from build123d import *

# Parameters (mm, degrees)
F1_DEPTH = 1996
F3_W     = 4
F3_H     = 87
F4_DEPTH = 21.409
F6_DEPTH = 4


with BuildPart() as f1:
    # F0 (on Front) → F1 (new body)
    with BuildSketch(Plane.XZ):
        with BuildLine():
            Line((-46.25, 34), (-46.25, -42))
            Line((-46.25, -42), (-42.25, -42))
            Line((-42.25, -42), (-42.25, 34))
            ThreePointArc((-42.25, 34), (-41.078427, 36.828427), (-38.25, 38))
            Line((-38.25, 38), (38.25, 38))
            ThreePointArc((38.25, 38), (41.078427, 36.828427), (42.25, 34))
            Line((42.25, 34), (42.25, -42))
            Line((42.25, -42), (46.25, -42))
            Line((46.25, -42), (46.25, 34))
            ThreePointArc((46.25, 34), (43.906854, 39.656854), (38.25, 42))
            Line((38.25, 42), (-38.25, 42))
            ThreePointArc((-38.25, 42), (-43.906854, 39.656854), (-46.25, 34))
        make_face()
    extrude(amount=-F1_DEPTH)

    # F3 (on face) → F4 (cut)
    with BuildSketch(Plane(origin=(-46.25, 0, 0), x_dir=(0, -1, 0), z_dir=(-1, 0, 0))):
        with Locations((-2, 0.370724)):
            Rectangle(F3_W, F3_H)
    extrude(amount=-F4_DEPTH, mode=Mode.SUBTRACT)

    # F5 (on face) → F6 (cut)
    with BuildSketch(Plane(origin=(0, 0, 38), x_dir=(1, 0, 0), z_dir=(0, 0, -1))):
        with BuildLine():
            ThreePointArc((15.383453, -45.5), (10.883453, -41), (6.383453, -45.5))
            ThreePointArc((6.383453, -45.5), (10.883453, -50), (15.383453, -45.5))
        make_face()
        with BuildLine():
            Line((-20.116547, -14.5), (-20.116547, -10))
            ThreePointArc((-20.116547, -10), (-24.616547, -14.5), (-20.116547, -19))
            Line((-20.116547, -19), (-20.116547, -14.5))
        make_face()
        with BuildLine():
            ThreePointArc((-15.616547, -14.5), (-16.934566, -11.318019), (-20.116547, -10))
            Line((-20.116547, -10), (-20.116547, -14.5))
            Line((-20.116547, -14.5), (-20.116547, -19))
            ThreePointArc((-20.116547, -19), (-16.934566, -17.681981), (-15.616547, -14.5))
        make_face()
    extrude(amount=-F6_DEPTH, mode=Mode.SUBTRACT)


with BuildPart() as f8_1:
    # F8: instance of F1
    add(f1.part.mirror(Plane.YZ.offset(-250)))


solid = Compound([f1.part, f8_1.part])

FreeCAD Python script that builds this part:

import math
import FreeCAD as App
import Part
import Sketcher
Q = App.Units.Quantity

doc = App.newDocument("Part")
body = doc.addObject("PartDesign::Body", "Body")

# Sketch on XZ plane
sketch1 = doc.addObject("Sketcher::SketchObject", "Sketch")
body.addObject(sketch1)
sketch1.AttachmentSupport = (doc.XZ_Plane, [""])
sketch1.MapMode = "FlatFace"
sketch1.addGeometry([
    Part.LineSegment(App.Vector(-46.2, 34, 0), App.Vector(-46.2, -42, 0)),  # 0
    Part.LineSegment(App.Vector(-46.2, -42, 0), App.Vector(-42.2, -42, 0)),  # 1
    Part.LineSegment(App.Vector(-42.2, -42, 0), App.Vector(-42.2, 34, 0)),  # 2
    Part.ArcOfCircle(Part.Circle(App.Vector(-38.2, 34, 0), App.Vector(0, 0, 1), 4), math.radians(90), math.radians(180)),  # 3
    Part.LineSegment(App.Vector(-38.2, 38, 0), App.Vector(38.2, 38, 0)),  # 4
    Part.ArcOfCircle(Part.Circle(App.Vector(38.2, 34, 0), App.Vector(0, 0, 1), 4), math.radians(0), math.radians(90)),  # 5
    Part.LineSegment(App.Vector(42.2, 34, 0), App.Vector(42.2, -42, 0)),  # 6
    Part.LineSegment(App.Vector(42.2, -42, 0), App.Vector(46.2, -42, 0)),  # 7
    Part.LineSegment(App.Vector(46.2, -42, 0), App.Vector(46.2, 34, 0)),  # 8
    Part.ArcOfCircle(Part.Circle(App.Vector(38.2, 34, 0), App.Vector(0, 0, 1), 8), math.radians(0), math.radians(90)),  # 9
    Part.LineSegment(App.Vector(38.2, 42, 0), App.Vector(-38.2, 42, 0)),  # 10
    Part.ArcOfCircle(Part.Circle(App.Vector(-38.2, 34, 0), App.Vector(0, 0, 1), 8), math.radians(90), math.radians(180)),  # 11
], False)
sketch1.addConstraint([
    Sketcher.Constraint("Coincident", 0, 2, 1, 1),
    Sketcher.Constraint("Coincident", 1, 2, 2, 1),
    Sketcher.Constraint("Tangent", 2, 2, 3, 2),
    Sketcher.Constraint("Tangent", 3, 1, 4, 1),
    Sketcher.Constraint("Tangent", 4, 2, 5, 2),
    Sketcher.Constraint("Tangent", 5, 1, 6, 1),
    Sketcher.Constraint("Coincident", 6, 2, 7, 1),
    Sketcher.Constraint("Coincident", 7, 2, 8, 1),
    Sketcher.Constraint("Tangent", 8, 2, 9, 1),
    Sketcher.Constraint("Tangent", 9, 2, 10, 1),
    Sketcher.Constraint("Tangent", 10, 2, 11, 1),
    Sketcher.Constraint("Tangent", 11, 2, 0, 1),
    Sketcher.Constraint("Vertical", 0),
    Sketcher.Constraint("Horizontal", 1),
    Sketcher.Constraint("Vertical", 2),
    Sketcher.Constraint("Horizontal", 4),
    Sketcher.Constraint("Vertical", 6),
    Sketcher.Constraint("Horizontal", 7),
    Sketcher.Constraint("Vertical", 8),
    Sketcher.Constraint("Horizontal", 10),
    Sketcher.Constraint("Coincident", 9, 3, 5, 3),
    Sketcher.Constraint("Coincident", 11, 3, 3, 3),
    Sketcher.Constraint("Equal", 3, 5),
    Sketcher.Constraint("Symmetric", 1, 2, 6, 2, -2),
    Sketcher.Constraint("Radius", 3, Q("4 mm")),
    Sketcher.Constraint("Radius", 9, Q("8.000001 mm")),
    Sketcher.Constraint("DistanceY", 0, 2, 0, 1, Q("76 mm")),
    Sketcher.Constraint("DistanceX", 4, 1, 4, 2, Q("76.5 mm")),
    Sketcher.Constraint("DistanceY", -1, 1, 3, 3, Q("34 mm")),
])
pad1 = doc.addObject("PartDesign::Pad", "Pad")
body.addObject(pad1)
pad1.Profile = sketch1
pad1.Length = 1996
pad1.Reversed = True

# Sketch on YZ plane
sketch2 = doc.addObject("Sketcher::SketchObject", "Sketch001")
body.addObject(sketch2)
sketch2.AttachmentSupport = (doc.YZ_Plane, [""])
sketch2.MapMode = "FlatFace"
sketch2.AttachmentOffset = App.Placement(App.Vector(0, 0, -46.25), App.Rotation())
sketch2.addGeometry([
    Part.LineSegment(App.Vector(4, 43.9, 0), App.Vector(4, -43.1, 0)),
    Part.LineSegment(App.Vector(4, -43.1, 0), App.Vector(0, -43.1, 0)),
    Part.LineSegment(App.Vector(0, -43.1, 0), App.Vector(0, 43.9, 0)),
    Part.LineSegment(App.Vector(0, 43.9, 0), App.Vector(4, 43.9, 0)),
], False)
sketch2.addConstraint([
    Sketcher.Constraint("Coincident", 0, 2, 1, 1),
    Sketcher.Constraint("Coincident", 1, 2, 2, 1),
    Sketcher.Constraint("Coincident", 2, 2, 3, 1),
    Sketcher.Constraint("Coincident", 3, 2, 0, 1),
    Sketcher.Constraint("Vertical", 0),
    Sketcher.Constraint("Horizontal", 1),
    Sketcher.Constraint("Vertical", 2),
    Sketcher.Constraint("Horizontal", 3),
    Sketcher.Constraint("PointOnObject", 1, 2, -2),
    Sketcher.Constraint("DistanceX", 1, 2, 1, 1, Q("4 mm")),
    Sketcher.Constraint("DistanceY", 0, 2, 0, 1, Q("87 mm")),
    Sketcher.Constraint("DistanceY", 0, 2, -1, 1, Q("43.129276 mm")),
])
pocket1 = doc.addObject("PartDesign::Pocket", "Pocket")
body.addObject(pocket1)
pocket1.Profile = sketch2
pocket1.Length = 21.409
pocket1.Reversed = True

# Sketch on XY plane
sketch3 = doc.addObject("Sketcher::SketchObject", "Sketch002")
body.addObject(sketch3)
sketch3.AttachmentSupport = (doc.XY_Plane, [""])
sketch3.MapMode = "FlatFace"
sketch3.AttachmentOffset = App.Placement(App.Vector(0, 0, 38), App.Rotation())
sketch3.addGeometry([
    Part.Circle(App.Vector(10.9, 45.5, 0), App.Vector(0, 0, 1), 4.5),
    Part.ArcOfCircle(Part.Circle(App.Vector(-20.1, 14.5, 0), App.Vector(0, 0, 1), 4.5), math.radians(90), math.radians(270)),
    Part.ArcOfCircle(Part.Circle(App.Vector(-20.1, 14.5, 0), App.Vector(0, 0, 1), 4.5), math.radians(0), math.radians(90)),
    Part.ArcOfCircle(Part.Circle(App.Vector(-20.1, 14.5, 0), App.Vector(0, 0, 1), 4.5), math.radians(-90), math.radians(0)),
], False)
sketch3.addConstraint([
    Sketcher.Constraint("Tangent", 1, 1, 2, 2),
    Sketcher.Constraint("Tangent", 2, 1, 3, 2),
    Sketcher.Constraint("Tangent", 3, 1, 1, 2),
    Sketcher.Constraint("Equal", 0, 1),
    Sketcher.Constraint("Horizontal", 3, 3, 2, 1),
    Sketcher.Constraint("Vertical", 3, 3, 1, 1),
    Sketcher.Constraint("Vertical", 1, 1, 3, 1),
    Sketcher.Constraint("Diameter", 0, Q("9 mm")),
    Sketcher.Constraint("DistanceY", -1, 1, 1, 1, Q("19 mm")),
    Sketcher.Constraint("DistanceX", 1, 3, 0, 3, Q("31 mm")),
    Sketcher.Constraint("DistanceY", 1, 3, 0, 3, Q("31 mm")),
    Sketcher.Constraint("DistanceX", -1, 1, 0, 3, Q("10.883453 mm")),
])
pocket2 = doc.addObject("PartDesign::Pocket", "Pocket001")
body.addObject(pocket2)
pocket2.Profile = sketch3
pocket2.Length = 4
pocket2.Reversed = True
body2 = doc.addObject("PartDesign::Body", "Body001")
doc.recompute()

mirroring = doc.addObject("Part::Mirroring", "Mirroring")
mirroring.Source = body
mirroring.Base = App.Vector(-250, 0, 0)
mirroring.Normal = App.Vector(1, 0, 0)
body2.BaseFeature = mirroring
doc.recompute()
mirroring.Visibility = False

doc.recompute()
